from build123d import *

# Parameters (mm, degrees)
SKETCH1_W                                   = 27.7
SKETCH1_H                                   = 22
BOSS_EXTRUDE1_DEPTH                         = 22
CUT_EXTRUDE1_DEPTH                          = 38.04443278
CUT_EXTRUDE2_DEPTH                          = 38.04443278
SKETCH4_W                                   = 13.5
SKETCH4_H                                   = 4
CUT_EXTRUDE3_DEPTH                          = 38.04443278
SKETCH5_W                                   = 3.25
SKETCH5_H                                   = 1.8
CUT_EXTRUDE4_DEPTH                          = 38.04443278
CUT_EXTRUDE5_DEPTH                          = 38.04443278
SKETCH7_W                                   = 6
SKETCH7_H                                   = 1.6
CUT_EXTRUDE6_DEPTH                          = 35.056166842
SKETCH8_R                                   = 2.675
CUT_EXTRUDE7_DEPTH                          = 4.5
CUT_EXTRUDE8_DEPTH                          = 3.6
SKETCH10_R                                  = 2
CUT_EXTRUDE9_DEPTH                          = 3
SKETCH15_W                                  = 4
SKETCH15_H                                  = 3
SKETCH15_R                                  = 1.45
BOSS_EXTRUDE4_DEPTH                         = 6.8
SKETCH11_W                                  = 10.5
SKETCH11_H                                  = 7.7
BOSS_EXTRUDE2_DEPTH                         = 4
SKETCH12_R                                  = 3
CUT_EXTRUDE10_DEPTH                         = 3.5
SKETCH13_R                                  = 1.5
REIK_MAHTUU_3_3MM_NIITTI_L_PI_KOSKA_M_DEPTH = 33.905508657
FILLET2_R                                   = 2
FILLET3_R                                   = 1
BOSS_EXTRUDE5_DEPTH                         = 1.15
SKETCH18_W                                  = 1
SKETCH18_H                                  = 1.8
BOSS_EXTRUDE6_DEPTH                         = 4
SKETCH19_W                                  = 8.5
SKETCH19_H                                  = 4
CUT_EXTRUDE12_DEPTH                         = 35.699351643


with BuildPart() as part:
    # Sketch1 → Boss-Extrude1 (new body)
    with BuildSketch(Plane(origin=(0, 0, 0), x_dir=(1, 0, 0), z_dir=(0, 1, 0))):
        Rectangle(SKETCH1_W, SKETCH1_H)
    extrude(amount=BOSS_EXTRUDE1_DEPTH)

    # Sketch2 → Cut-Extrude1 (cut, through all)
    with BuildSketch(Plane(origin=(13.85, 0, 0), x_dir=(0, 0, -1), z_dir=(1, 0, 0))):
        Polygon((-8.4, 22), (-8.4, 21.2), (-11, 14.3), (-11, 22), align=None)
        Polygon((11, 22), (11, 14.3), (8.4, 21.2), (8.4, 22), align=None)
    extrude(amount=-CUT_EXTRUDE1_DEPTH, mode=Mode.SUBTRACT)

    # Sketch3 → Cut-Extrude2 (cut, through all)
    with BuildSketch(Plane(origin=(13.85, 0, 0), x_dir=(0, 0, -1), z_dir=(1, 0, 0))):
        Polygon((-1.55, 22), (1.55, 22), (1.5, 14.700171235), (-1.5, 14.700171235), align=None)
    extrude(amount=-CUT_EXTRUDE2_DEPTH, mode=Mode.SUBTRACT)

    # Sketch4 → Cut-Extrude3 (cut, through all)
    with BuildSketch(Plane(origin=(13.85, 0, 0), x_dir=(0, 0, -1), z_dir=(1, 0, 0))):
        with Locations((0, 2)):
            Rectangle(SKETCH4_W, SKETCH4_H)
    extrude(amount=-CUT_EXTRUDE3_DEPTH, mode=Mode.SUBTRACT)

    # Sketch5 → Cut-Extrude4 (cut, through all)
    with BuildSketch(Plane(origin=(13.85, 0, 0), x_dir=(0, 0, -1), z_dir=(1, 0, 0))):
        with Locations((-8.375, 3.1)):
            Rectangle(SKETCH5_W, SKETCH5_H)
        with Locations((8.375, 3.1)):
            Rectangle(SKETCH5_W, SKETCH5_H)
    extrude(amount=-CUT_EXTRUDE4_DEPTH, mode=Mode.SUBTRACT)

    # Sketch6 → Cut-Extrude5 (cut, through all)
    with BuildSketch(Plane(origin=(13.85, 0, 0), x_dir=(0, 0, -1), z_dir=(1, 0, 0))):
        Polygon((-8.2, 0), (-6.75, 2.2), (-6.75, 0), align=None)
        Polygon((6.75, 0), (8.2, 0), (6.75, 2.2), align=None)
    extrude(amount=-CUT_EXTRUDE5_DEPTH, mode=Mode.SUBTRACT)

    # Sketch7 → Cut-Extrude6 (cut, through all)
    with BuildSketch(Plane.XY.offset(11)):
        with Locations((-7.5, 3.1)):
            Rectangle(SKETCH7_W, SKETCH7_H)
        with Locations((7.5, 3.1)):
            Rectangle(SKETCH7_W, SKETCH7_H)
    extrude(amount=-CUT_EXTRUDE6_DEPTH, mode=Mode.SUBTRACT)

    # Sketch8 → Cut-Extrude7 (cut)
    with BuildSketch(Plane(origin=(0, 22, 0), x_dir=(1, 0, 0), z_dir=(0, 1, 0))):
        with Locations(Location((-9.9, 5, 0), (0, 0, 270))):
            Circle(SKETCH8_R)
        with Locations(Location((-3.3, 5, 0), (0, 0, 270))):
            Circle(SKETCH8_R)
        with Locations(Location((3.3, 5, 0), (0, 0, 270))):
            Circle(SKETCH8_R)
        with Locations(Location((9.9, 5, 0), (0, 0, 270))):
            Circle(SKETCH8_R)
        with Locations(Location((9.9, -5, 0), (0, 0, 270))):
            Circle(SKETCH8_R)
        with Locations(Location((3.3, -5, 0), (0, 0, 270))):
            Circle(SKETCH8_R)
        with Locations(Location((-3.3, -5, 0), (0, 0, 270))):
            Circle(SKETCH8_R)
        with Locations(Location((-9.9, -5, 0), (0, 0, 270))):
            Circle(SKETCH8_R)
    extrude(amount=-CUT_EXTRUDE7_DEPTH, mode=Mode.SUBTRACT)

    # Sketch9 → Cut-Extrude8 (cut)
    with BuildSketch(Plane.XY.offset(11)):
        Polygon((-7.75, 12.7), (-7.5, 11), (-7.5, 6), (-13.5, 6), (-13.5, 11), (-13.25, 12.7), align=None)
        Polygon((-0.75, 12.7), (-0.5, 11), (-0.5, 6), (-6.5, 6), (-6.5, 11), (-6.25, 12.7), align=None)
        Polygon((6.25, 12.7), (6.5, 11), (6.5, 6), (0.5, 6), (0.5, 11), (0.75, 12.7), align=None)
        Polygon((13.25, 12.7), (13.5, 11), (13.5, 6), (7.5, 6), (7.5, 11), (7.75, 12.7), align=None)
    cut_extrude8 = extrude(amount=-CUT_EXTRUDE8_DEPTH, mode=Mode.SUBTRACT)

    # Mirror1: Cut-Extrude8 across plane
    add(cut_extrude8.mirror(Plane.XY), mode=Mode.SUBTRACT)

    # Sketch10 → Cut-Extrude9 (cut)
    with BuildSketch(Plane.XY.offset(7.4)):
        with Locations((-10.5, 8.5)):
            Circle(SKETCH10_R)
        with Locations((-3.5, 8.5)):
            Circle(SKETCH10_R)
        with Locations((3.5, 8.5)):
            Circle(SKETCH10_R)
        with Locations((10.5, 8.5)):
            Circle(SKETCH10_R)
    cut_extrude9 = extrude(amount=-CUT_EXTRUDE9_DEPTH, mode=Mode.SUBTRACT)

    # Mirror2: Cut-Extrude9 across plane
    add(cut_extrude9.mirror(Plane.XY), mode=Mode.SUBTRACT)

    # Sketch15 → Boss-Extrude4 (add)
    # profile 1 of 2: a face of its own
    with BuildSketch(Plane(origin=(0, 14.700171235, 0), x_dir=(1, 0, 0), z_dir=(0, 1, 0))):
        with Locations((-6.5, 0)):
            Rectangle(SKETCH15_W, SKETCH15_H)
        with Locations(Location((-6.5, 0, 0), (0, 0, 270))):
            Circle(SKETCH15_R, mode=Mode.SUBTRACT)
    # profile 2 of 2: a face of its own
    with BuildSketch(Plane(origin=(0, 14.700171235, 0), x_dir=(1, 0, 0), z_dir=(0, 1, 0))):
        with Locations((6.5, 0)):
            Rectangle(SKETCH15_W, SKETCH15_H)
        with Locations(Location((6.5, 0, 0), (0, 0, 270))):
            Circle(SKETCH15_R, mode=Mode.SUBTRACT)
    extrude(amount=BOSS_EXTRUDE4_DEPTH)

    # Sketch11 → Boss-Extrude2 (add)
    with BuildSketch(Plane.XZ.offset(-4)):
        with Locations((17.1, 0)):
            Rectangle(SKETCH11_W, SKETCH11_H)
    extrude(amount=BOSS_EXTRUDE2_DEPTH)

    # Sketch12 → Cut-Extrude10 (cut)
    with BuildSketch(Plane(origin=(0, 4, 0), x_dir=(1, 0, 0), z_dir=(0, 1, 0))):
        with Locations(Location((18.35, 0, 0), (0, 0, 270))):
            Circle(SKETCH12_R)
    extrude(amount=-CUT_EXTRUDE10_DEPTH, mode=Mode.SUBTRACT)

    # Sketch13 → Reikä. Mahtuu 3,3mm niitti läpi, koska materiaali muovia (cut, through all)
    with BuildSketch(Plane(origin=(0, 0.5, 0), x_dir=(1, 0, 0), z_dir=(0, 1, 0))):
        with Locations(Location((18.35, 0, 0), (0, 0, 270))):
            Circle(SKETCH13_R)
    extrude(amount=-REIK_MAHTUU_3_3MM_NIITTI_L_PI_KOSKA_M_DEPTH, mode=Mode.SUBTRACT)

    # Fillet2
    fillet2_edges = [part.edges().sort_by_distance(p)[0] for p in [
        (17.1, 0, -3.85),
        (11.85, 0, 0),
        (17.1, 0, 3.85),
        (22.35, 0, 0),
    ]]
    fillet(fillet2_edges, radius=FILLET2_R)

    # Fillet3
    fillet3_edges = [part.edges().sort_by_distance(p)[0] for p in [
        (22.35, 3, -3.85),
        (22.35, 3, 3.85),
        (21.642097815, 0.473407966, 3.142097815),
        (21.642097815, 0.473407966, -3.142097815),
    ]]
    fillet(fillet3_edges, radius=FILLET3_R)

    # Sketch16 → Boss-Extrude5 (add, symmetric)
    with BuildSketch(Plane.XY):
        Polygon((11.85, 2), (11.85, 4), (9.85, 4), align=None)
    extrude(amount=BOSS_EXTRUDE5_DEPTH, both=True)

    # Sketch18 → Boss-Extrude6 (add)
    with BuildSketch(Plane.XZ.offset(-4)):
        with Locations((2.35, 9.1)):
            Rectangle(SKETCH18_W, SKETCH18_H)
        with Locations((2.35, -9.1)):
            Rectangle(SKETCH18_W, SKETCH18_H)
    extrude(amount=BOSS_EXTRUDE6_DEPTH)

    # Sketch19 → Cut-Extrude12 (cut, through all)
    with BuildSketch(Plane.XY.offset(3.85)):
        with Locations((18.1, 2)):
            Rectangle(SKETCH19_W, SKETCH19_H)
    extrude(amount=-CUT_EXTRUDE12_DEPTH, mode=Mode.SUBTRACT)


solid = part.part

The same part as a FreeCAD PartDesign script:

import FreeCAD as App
import Part
import Sketcher
Q = App.Units.Quantity


def edges_at(feature, points):
    """Names of the edges that pass closest to the given points."""
    edges = feature.Shape.Edges
    near = lambda p: min(range(len(edges)), key=lambda i: edges[i].distToShape(Part.Vertex(*p))[0])
    return sorted({f"Edge{near(p) + 1}" for p in points})


def add_polygon(sketch, points):
    """Adds a closed chain of lines whose ends are joined by coincident constraints."""
    first, n = sketch.GeometryCount, len(points)
    for a, b in zip(points, points[1:] + points[:1]):
        sketch.addGeometry(Part.LineSegment(App.Vector(*a, 0), App.Vector(*b, 0)), False)
    for i in range(n):
        sketch.addConstraint(Sketcher.Constraint("Coincident", first + i, 2, first + (i + 1) % n, 1))

doc = App.newDocument("Part")
body = doc.addObject("PartDesign::Body", "Body")

sketch1 = body.newObject("Sketcher::SketchObject", "Sketch")
sketch1.AttachmentSupport = (doc.getObject("XZ_Plane"), [""])
sketch1.MapMode = "FlatFace"
add_polygon(sketch1, [(-13.85, -11), (-13.85, 11), (13.85, 11), (13.85, -11)])
sketch1.addConstraint([
    Sketcher.Constraint("Vertical", 0),
    Sketcher.Constraint("Horizontal", 1),
    Sketcher.Constraint("Vertical", 2),
    Sketcher.Constraint("Horizontal", 3),
    Sketcher.Constraint("Symmetric", 0, 2, 2, 2, -1, 1),
    Sketcher.Constraint("DistanceY", 0, 1, 0, 2, Q("22 mm")),
    Sketcher.Constraint("DistanceX", 1, 1, 1, 2, Q("27.7 mm")),
])
pad1 = body.newObject("PartDesign::Pad", "Pad")
pad1.Profile = sketch1
pad1.Length = 22
pad1.Reversed = True

sketch2 = body.newObject("Sketcher::SketchObject", "Sketch001")
sketch2.AttachmentSupport = (doc.getObject("YZ_Plane"), [""])
sketch2.MapMode = "FlatFace"
sketch2.AttachmentOffset = App.Placement(App.Vector(0, 0, 13.85), App.Rotation())
add_polygon(sketch2, [(21.2, 8.4), (22, 8.4), (22, 11), (14.3, 11)])
add_polygon(sketch2, [(14.3, -11), (22, -11), (22, -8.4), (21.2, -8.4)])
sketch2.addConstraint([
    Sketcher.Constraint("Horizontal", 0),
    Sketcher.Constraint("Vertical", 1),
    Sketcher.Constraint("Horizontal", 2),
    Sketcher.Constraint("Horizontal", 4),
    Sketcher.Constraint("Vertical", 5),
    Sketcher.Constraint("Horizontal", 6),
    Sketcher.Constraint("Symmetric", 1, 2, 4, 2, -1),
    Sketcher.Constraint("Symmetric", 3, 2, 6, 2, -1),
    Sketcher.Constraint("Vertical", 2, 2, 7, 2),
    Sketcher.Constraint("DistanceX", 0, 1, 0, 2, Q("0.8 mm")),
    Sketcher.Constraint("DistanceX", 2, 2, 2, 1, Q("7.7 mm")),
    Sketcher.Constraint("DistanceY", 1, 1, 1, 2, Q("2.6 mm")),
    Sketcher.Constraint("DistanceX", -1, 1, 0, 2, Q("22 mm")),
    Sketcher.Constraint("DistanceY", -1, 1, 1, 2, Q("11 mm")),
])
pocket1 = body.newObject("PartDesign::Pocket", "Pocket")
pocket1.Profile = sketch2
pocket1.Type = "ThroughAll"

sketch3 = body.newObject("Sketcher::SketchObject", "Sketch002")
sketch3.AttachmentSupport = (doc.getObject("YZ_Plane"), [""])
sketch3.MapMode = "FlatFace"
sketch3.AttachmentOffset = App.Placement(App.Vector(0, 0, 13.85), App.Rotation())
add_polygon(sketch3, [(22, -1.55), (22, 1.55), (14.700171, 1.5), (14.700171, -1.5)])
sketch3.addConstraint([
    Sketcher.Constraint("Vertical", 0),
    Sketcher.Constraint("Vertical", 2),
    Sketcher.Constraint("Equal", 1, 3),
    Sketcher.Constraint("DistanceY", 2, 2, 2, 1, Q("3 mm")),
    Sketcher.Constraint("DistanceY", 0, 1, 0, 2, Q("3.1 mm")),
    Sketcher.Constraint("DistanceX", -1, 1, 0, 2, Q("22 mm")),
    Sketcher.Constraint("Distance", 1, Q("7.3 mm")),
    Sketcher.Constraint("DistanceY", -1, 1, 1, 2, Q("1.5 mm")),
])
pocket2 = body.newObject("PartDesign::Pocket", "Pocket001")
pocket2.Profile = sketch3
pocket2.Type = "ThroughAll"

sketch4 = body.newObject("Sketcher::SketchObject", "Sketch003")
sketch4.AttachmentSupport = (doc.getObject("YZ_Plane"), [""])
sketch4.MapMode = "FlatFace"
sketch4.AttachmentOffset = App.Placement(App.Vector(0, 0, 13.85), App.Rotation())
add_polygon(sketch4, [(4, 6.75), (0, 6.75), (0, -6.75), (4, -6.75)])
sketch4.addConstraint([
    Sketcher.Constraint("Horizontal", 0),
    Sketcher.Constraint("Vertical", 1),
    Sketcher.Constraint("Horizontal", 2),
    Sketcher.Constraint("Vertical", 3),
    Sketcher.Constraint("Symmetric", 0, 2, 1, 2, -1, 1),
    Sketcher.Constraint("DistanceX", 0, 2, 0, 1, Q("4 mm")),
    Sketcher.Constraint("DistanceY", 1, 2, 1, 1, Q("13.5 mm")),
])
pocket3 = body.newObject("PartDesign::Pocket", "Pocket002")
pocket3.Profile = sketch4
pocket3.Type = "ThroughAll"

sketch5 = body.newObject("Sketcher::SketchObject", "Sketch004")
sketch5.AttachmentSupport = (doc.getObject("YZ_Plane"), [""])
sketch5.MapMode = "FlatFace"
sketch5.AttachmentOffset = App.Placement(App.Vector(0, 0, 13.85), App.Rotation())
add_polygon(sketch5, [(4, 10), (2.2, 10), (2.2, 6.75), (4, 6.75)])
add_polygon(sketch5, [(4, -6.75), (2.2, -6.75), (2.2, -10), (4, -10)])
sketch5.addConstraint([
    Sketcher.Constraint("Horizontal", 0),
    Sketcher.Constraint("Vertical", 1),
    Sketcher.Constraint("Horizontal", 2),
    Sketcher.Constraint("Vertical", 3),
    Sketcher.Constraint("Horizontal", 4),
    Sketcher.Constraint("Vertical", 5),
    Sketcher.Constraint("Horizontal", 6),
    Sketcher.Constraint("Vertical", 7),
    Sketcher.Constraint("Symmetric", 1, 2, 4, 2, -1),
    Sketcher.Constraint("Symmetric", 3, 2, 6, 2, -1),
    Sketcher.Constraint("DistanceX", 0, 2, 0, 1, Q("1.8 mm")),
    Sketcher.Constraint("DistanceY", -1, 1, 0, 2, Q("10 mm")),
    Sketcher.Constraint("DistanceX", -1, 1, 2, 2, Q("4 mm")),
    Sketcher.Constraint("DistanceY", 1, 2, 1, 1, Q("3.25 mm")),
])
pocket4 = body.newObject("PartDesign::Pocket", "Pocket003")
pocket4.Profile = sketch5
pocket4.Type = "ThroughAll"

sketch6 = body.newObject("Sketcher::SketchObject", "Sketch005")
sketch6.AttachmentSupport = (doc.getObject("YZ_Plane"), [""])
sketch6.MapMode = "FlatFace"
sketch6.AttachmentOffset = App.Placement(App.Vector(0, 0, 13.85), App.Rotation())
add_polygon(sketch6, [(2.2, 6.75), (0, 8.2), (0, 6.75)])
add_polygon(sketch6, [(0, -6.75), (0, -8.2), (2.2, -6.75)])
sketch6.addConstraint([
    Sketcher.Constraint("Vertical", 1),
    Sketcher.Constraint("Horizontal", 2),
    Sketcher.Constraint("Vertical", 3),
    Sketcher.Constraint("Horizontal", 5),
    Sketcher.Constraint("Symmetric", 0, 2, 3, 2, -1, 1),
    Sketcher.Constraint("Symmetric", 2, 2, 4, 2, -1),
    Sketcher.Constraint("PointOnObject", 0, 2, -2),
    Sketcher.Constraint("DistanceX", 2, 1, 2, 2, Q("2.2 mm")),
    Sketcher.Constraint("DistanceY", 1, 2, 1, 1, Q("1.45 mm")),
    Sketcher.Constraint("DistanceY", -1, 1, 0, 2, Q("8.2 mm")),
])
pocket5 = body.newObject("PartDesign::Pocket", "Pocket004")
pocket5.Profile = sketch6
pocket5.Type = "ThroughAll"

sketch7 = body.newObject("Sketcher::SketchObject", "Sketch006")
sketch7.AttachmentSupport = (doc.getObject("XY_Plane"), [""])
sketch7.MapMode = "FlatFace"
sketch7.AttachmentOffset = App.Placement(App.Vector(0, 0, 11), App.Rotation())
add_polygon(sketch7, [(-10.5, 3.9), (-10.5, 2.3), (-4.5, 2.3), (-4.5, 3.9)])
add_polygon(sketch7, [(4.5, 3.9), (4.5, 2.3), (10.5, 2.3), (10.5, 3.9)])
sketch7.addConstraint([
    Sketcher.Constraint("Vertical", 0),
    Sketcher.Constraint("Horizontal", 1),
    Sketcher.Constraint("Vertical", 2),
    Sketcher.Constraint("Horizontal", 3),
    Sketcher.Constraint("Vertical", 4),
    Sketcher.Constraint("Horizontal", 5),
    Sketcher.Constraint("Vertical", 6),
    Sketcher.Constraint("Horizontal", 7),
    Sketcher.Constraint("Symmetric", 1, 2, 4, 2, -2),
    Sketcher.Constraint("Symmetric", 3, 2, 6, 2, -2),
    Sketcher.Constraint("DistanceX", 1, 1, 1, 2, Q("6 mm")),
    Sketcher.Constraint("DistanceY", 0, 2, 0, 1, Q("1.6 mm")),
    Sketcher.Constraint("DistanceX", 1, 2, 4, 2, Q("9 mm")),
    Sketcher.Constraint("DistanceY", -1, 1, 0, 2, Q("2.3 mm")),
])
pocket6 = body.newObject("PartDesign::Pocket", "Pocket005")
pocket6.Profile = sketch7
pocket6.Type = "ThroughAll"

sketch8 = body.newObject("Sketcher::SketchObject", "Sketch007")
sketch8.AttachmentSupport = (doc.getObject("XZ_Plane"), [""])
sketch8.MapMode = "FlatFace"
sketch8.AttachmentOffset = App.Placement(App.Vector(0, 0, -22), App.Rotation())
sketch8.addGeometry([
    Part.Circle(App.Vector(-9.9, -5, 0), App.Vector(0, 0, 1), 2.675),
    Part.Circle(App.Vector(-3.3, -5, 0), App.Vector(0, 0, 1), 2.675),
    Part.Circle(App.Vector(3.3, -5, 0), App.Vector(0, 0, 1), 2.675),
    Part.Circle(App.Vector(9.9, -5, 0), App.Vector(0, 0, 1), 2.675),
    Part.Circle(App.Vector(9.9, 5, 0), App.Vector(0, 0, 1), 2.675),
    Part.Circle(App.Vector(3.3, 5, 0), App.Vector(0, 0, 1), 2.675),
    Part.Circle(App.Vector(-3.3, 5, 0), App.Vector(0, 0, 1), 2.675),
    Part.Circle(App.Vector(-9.9, 5, 0), App.Vector(0, 0, 1), 2.675),
], False)
sketch8.addConstraint([
    Sketcher.Constraint("Equal", 0, 1),
    Sketcher.Constraint("Equal", 1, 2),
    Sketcher.Constraint("Equal", 2, 3),
    Sketcher.Constraint("Equal", 3, 4),
    Sketcher.Constraint("Equal", 4, 5),
    Sketcher.Constraint("Equal", 5, 6),
    Sketcher.Constraint("Equal", 6, 7),
    Sketcher.Constraint("Symmetric", 0, 3, 4, 3, -1, 1),
    Sketcher.Constraint("Symmetric", 1, 3, 5, 3, -1, 1),
    Sketcher.Constraint("Symmetric", 2, 3, 6, 3, -1, 1),
    Sketcher.Constraint("Symmetric", 3, 3, 7, 3, -1, 1),
    Sketcher.Constraint("Symmetric", 1, 3, 2, 3, -2),
    Sketcher.Constraint("Symmetric", 0, 3, 3, 3, -2),
    Sketcher.Constraint("Horizontal", 0, 3, 1, 3),
    Sketcher.Constraint("Diameter", 0, Q("5.35 mm")),
    Sketcher.Constraint("DistanceY", 0, 3, -1, 1, Q("5 mm")),
    Sketcher.Constraint("DistanceX", 0, 3, -1, 1, Q("9.9 mm")),
    Sketcher.Constraint("DistanceX", 1, 3, -1, 1, Q("3.3 mm")),
])
pocket7 = body.newObject("PartDesign::Pocket", "Pocket006")
pocket7.Profile = sketch8
pocket7.Length = 4.5
pocket7.Reversed = True

sketch9 = body.newObject("Sketcher::SketchObject", "Sketch008")
sketch9.AttachmentSupport = (doc.getObject("XY_Plane"), [""])
sketch9.MapMode = "FlatFace"
sketch9.AttachmentOffset = App.Placement(App.Vector(0, 0, 11), App.Rotation())
add_polygon(sketch9, [(-7.5, 11), (-7.75, 12.7), (-13.25, 12.7), (-13.5, 11), (-13.5, 6), (-7.5, 6)])
add_polygon(sketch9, [(-0.5, 11), (-0.75, 12.7), (-6.25, 12.7), (-6.5, 11), (-6.5, 6), (-0.5, 6)])
add_polygon(sketch9, [(6.5, 11), (6.25, 12.7), (0.75, 12.7), (0.5, 11), (0.5, 6), (6.5, 6)])
add_polygon(sketch9, [(13.5, 11), (13.25, 12.7), (7.75, 12.7), (7.5, 11), (7.5, 6), (13.5, 6)])
sketch9.addConstraint([
    Sketcher.Constraint("Horizontal", 1),
    Sketcher.Constraint("Vertical", 3),
    Sketcher.Constraint("Horizontal", 4),
    Sketcher.Constraint("Vertical", 5),
    Sketcher.Constraint("Horizontal", 7),
    Sketcher.Constraint("Vertical", 9),
    Sketcher.Constraint("Horizontal", 10),
    Sketcher.Constraint("Vertical", 11),
    Sketcher.Constraint("Horizontal", 13),
    Sketcher.Constraint("Vertical", 15),
    Sketcher.Constraint("Horizontal", 16),
    Sketcher.Constraint("Vertical", 17),
    Sketcher.Constraint("Horizontal", 19),
    Sketcher.Constraint("Vertical", 21),
    Sketcher.Constraint("Horizontal", 22),
    Sketcher.Constraint("Vertical", 23),
    Sketcher.Constraint("Symmetric", 7, 2, 12, 2, -2),
    Sketcher.Constraint("Symmetric", 11, 2, 14, 2, -2),
    Sketcher.Constraint("Symmetric", 9, 2, 16, 2, -2),
    Sketcher.Constraint("Symmetric", 1, 2, 18, 2, -2),
    Sketcher.Constraint("Symmetric", 5, 2, 20, 2, -2),
    Sketcher.Constraint("Symmetric", 3, 2, 22, 2, -2),
    Sketcher.Constraint("Parallel", 0, 6),
    Sketcher.Constraint("Parallel", 2, 8),
    Sketcher.Constraint("Parallel", 6, 12),
    Sketcher.Constraint("Parallel", 8, 14),
    Sketcher.Constraint("Parallel", 12, 18),
    Sketcher.Constraint("Parallel", 14, 20),
    Sketcher.Constraint("Horizontal", 2, 2, 5, 2),
    Sketcher.Constraint("Horizontal", 1, 2, 6, 2),
    Sketcher.Constraint("Horizontal", 5, 2, 8, 2),
    Sketcher.Constraint("Horizontal", 4, 2, 9, 2),
    Sketcher.Constraint("Horizontal", 8, 2, 11, 2),
    Sketcher.Constraint("Horizontal", 14, 2, 17, 2),
    Sketcher.Constraint("Equal", 1, 7),
    Sketcher.Constraint("DistanceX", 4, 1, 4, 2, Q("6 mm")),
    Sketcher.Constraint("DistanceY", 3, 2, 3, 1, Q("5 mm")),
    Sketcher.Constraint("DistanceX", 1, 2, 1, 1, Q("5.5 mm")),
    Sketcher.Constraint("DistanceY", -1, 1, 2, 2, Q("11 mm")),
    Sketcher.Constraint("DistanceX", 0, 2, 6, 2, Q("7 mm")),
    Sketcher.Constraint("DistanceX", 6, 2, 12, 2, Q("7 mm")),
    Sketcher.Constraint("DistanceY", -1, 1, 0, 2, Q("12.7 mm")),
])
pocket8 = body.newObject("PartDesign::Pocket", "Pocket007")
pocket8.Profile = sketch9
pocket8.Length = 3.6
doc.recompute()

mirrored = body.newObject("PartDesign::Mirrored", "Mirrored")
mirrored.Originals = [pocket8]
mirrored.MirrorPlane = (doc.getObject("XY_Plane"), [""])
body.Tip = mirrored

sketch10 = body.newObject("Sketcher::SketchObject", "Sketch009")
sketch10.AttachmentSupport = (doc.getObject("XY_Plane"), [""])
sketch10.MapMode = "FlatFace"
sketch10.AttachmentOffset = App.Placement(App.Vector(0, 0, 7.4), App.Rotation())
sketch10.addGeometry([
    Part.Circle(App.Vector(-10.5, 8.5, 0), App.Vector(0, 0, 1), 2),
    Part.Circle(App.Vector(-3.5, 8.5, 0), App.Vector(0, 0, 1), 2),
    Part.Circle(App.Vector(3.5, 8.5, 0), App.Vector(0, 0, 1), 2),
    Part.Circle(App.Vector(10.5, 8.5, 0), App.Vector(0, 0, 1), 2),
], False)
sketch10.addConstraint([
    Sketcher.Constraint("Equal", 0, 1),
    Sketcher.Constraint("Equal", 1, 2),
    Sketcher.Constraint("Equal", 2, 3),
    Sketcher.Constraint("Symmetric", 1, 3, 2, 3, -2),
    Sketcher.Constraint("Symmetric", 0, 3, 3, 3, -2),
    Sketcher.Constraint("Horizontal", 0, 3, 1, 3),
    Sketcher.Constraint("Diameter", 0, Q("4 mm")),
    Sketcher.Constraint("DistanceX", 0, 3, 1, 3, Q("7 mm")),
    Sketcher.Constraint("DistanceX", 1, 3, 2, 3, Q("7 mm")),
    Sketcher.Constraint("DistanceY", -1, 1, 0, 3, Q("8.5 mm")),
])
pocket9 = body.newObject("PartDesign::Pocket", "Pocket008")
pocket9.Profile = sketch10
pocket9.Length = 3
doc.recompute()

mirrored2 = body.newObject("PartDesign::Mirrored", "Mirrored001")
mirrored2.Originals = [pocket9]
mirrored2.MirrorPlane = (doc.getObject("XY_Plane"), [""])
body.Tip = mirrored2

sketch11 = body.newObject("Sketcher::SketchObject", "Sketch010")
sketch11.AttachmentSupport = (doc.getObject("XZ_Plane"), [""])
sketch11.MapMode = "FlatFace"
sketch11.AttachmentOffset = App.Placement(App.Vector(0, 0, -14.700171), App.Rotation())
add_polygon(sketch11, [(-8.5, -1.5), (-8.5, 1.5), (-4.5, 1.5), (-4.5, -1.5)])
sketch11.addGeometry(Part.Circle(App.Vector(-6.5, 0, 0), App.Vector(0, 0, 1), 1.45), False)
add_polygon(sketch11, [(4.5, -1.5), (4.5, 1.5), (8.5, 1.5), (8.5, -1.5)])
sketch11.addGeometry(Part.Circle(App.Vector(6.5, 0, 0), App.Vector(0, 0, 1), 1.45), False)
sketch11.addConstraint([
    Sketcher.Constraint("Vertical", 0),
    Sketcher.Constraint("Horizontal", 1),
    Sketcher.Constraint("Vertical", 2),
    Sketcher.Constraint("Horizontal", 3),
    Sketcher.Constraint("Vertical", 5),
    Sketcher.Constraint("Horizontal", 6),
    Sketcher.Constraint("Vertical", 7),
    Sketcher.Constraint("Horizontal", 8),
    Sketcher.Constraint("Equal", 4, 9),
    Sketcher.Constraint("Symmetric", 4, 3, 9, 3, -1, 1),
    Sketcher.Constraint("Symmetric", 2, 2, 5, 2, -1, 1),
    Sketcher.Constraint("Symmetric", 0, 2, 7, 2, -1, 1),
    Sketcher.Constraint("PointOnObject", 4, 3, -1),
    Sketcher.Constraint("Horizontal", 1, 2, 5, 2),
    Sketcher.Constraint("Diameter", 4, Q("2.9 mm")),
    Sketcher.Constraint("DistanceX", 1, 1, 1, 2, Q("4 mm")),
    Sketcher.Constraint("DistanceY", 0, 1, 0, 2, Q("3 mm")),
    Sketcher.Constraint("DistanceX", 4, 3, 9, 3, Q("13 mm")),
    Sketcher.Constraint("DistanceX", 0, 2, 4, 3, Q("2 mm")),
])
pad2 = body.newObject("PartDesign::Pad", "Pad001")
pad2.Profile = sketch11
pad2.Length = 6.8
pad2.Reversed = True

sketch12 = body.newObject("Sketcher::SketchObject", "Sketch011")
sketch12.AttachmentSupport = (doc.getObject("XZ_Plane"), [""])
sketch12.MapMode = "FlatFace"
sketch12.AttachmentOffset = App.Placement(App.Vector(0, 0, -4), App.Rotation())
add_polygon(sketch12, [(11.85, 3.85), (11.85, -3.85), (22.35, -3.85), (22.35, 3.85)])
sketch12.addConstraint([
    Sketcher.Constraint("Vertical", 0),
    Sketcher.Constraint("Horizontal", 1),
    Sketcher.Constraint("Vertical", 2),
    Sketcher.Constraint("Horizontal", 3),
    Sketcher.Constraint("DistanceX", 1, 1, 1, 2, Q("10.5 mm")),
    Sketcher.Constraint("DistanceY", 0, 2, 0, 1, Q("7.7 mm")),
    Sketcher.Constraint("DistanceX", -1, 1, 0, 2, Q("11.85 mm")),
    Sketcher.Constraint("DistanceY", 0, 2, -1, 1, Q("3.85 mm")),
])
pad3 = body.newObject("PartDesign::Pad", "Pad002")
pad3.Profile = sketch12
pad3.Length = 4

sketch13 = body.newObject("Sketcher::SketchObject", "Sketch012")
sketch13.AttachmentSupport = (doc.getObject("XZ_Plane"), [""])
sketch13.MapMode = "FlatFace"
sketch13.AttachmentOffset = App.Placement(App.Vector(0, 0, -4), App.Rotation())
sketch13.addGeometry(Part.Circle(App.Vector(18.35, 0, 0), App.Vector(0, 0, 1), 3), False)
sketch13.addConstraint([
    Sketcher.Constraint("PointOnObject", 0, 3, -1),
    Sketcher.Constraint("Diameter", 0, Q("6 mm")),
    Sketcher.Constraint("DistanceX", -1, 1, 0, 3, Q("18.35 mm")),
])
pocket10 = body.newObject("PartDesign::Pocket", "Pocket009")
pocket10.Profile = sketch13
pocket10.Length = 3.5
pocket10.Reversed = True

sketch14 = body.newObject("Sketcher::SketchObject", "Sketch013")
sketch14.AttachmentSupport = (doc.getObject("XZ_Plane"), [""])
sketch14.MapMode = "FlatFace"
sketch14.AttachmentOffset = App.Placement(App.Vector(0, 0, -0.5), App.Rotation())
sketch14.addGeometry(Part.Circle(App.Vector(18.35, 0, 0), App.Vector(0, 0, 1), 1.5), False)
sketch14.addConstraint([
    Sketcher.Constraint("PointOnObject", 0, 3, -1),
    Sketcher.Constraint("Diameter", 0, Q("3 mm")),
    Sketcher.Constraint("DistanceX", -1, 1, 0, 3, Q("18.35 mm")),
])
pocket11 = body.newObject("PartDesign::Pocket", "Pocket010")
pocket11.Profile = sketch14
pocket11.Type = "ThroughAll"
pocket11.Reversed = True
doc.recompute()

fillet = body.newObject("PartDesign::Fillet", "Fillet")
fillet.Base = (pocket11, edges_at(pocket11, [
    (17.1, 0, -3.85),
    (11.85, 0, 0),
    (17.1, 0, 3.85),
    (22.35, 0, 0),
]))
fillet.Radius = 2
doc.recompute()

fillet2 = body.newObject("PartDesign::Fillet", "Fillet001")
fillet2.Base = (fillet, edges_at(fillet, [
    (22.35, 3, -3.85),
    (22.35, 3, 3.85),
    (21.642, 0.473, 3.142),
    (21.642, 0.473, -3.142),
]))
fillet2.Radius = 1

sketch15 = body.newObject("Sketcher::SketchObject", "Sketch014")
sketch15.AttachmentSupport = (doc.getObject("XY_Plane"), [""])
sketch15.MapMode = "FlatFace"
add_polygon(sketch15, [(11.85, 2), (11.85, 4), (9.85, 4)])
sketch15.addConstraint([
    Sketcher.Constraint("Vertical", 0),
    Sketcher.Constraint("Horizontal", 1),
    Sketcher.Constraint("Equal", 1, 0),
    Sketcher.Constraint("DistanceX", 1, 2, 1, 1, Q("2 mm")),
    Sketcher.Constraint("DistanceY", -1, 1, 0, 2, Q("4 mm")),
    Sketcher.Constraint("DistanceX", -1, 1, 0, 2, Q("11.85 mm")),
])
pad4 = body.newObject("PartDesign::Pad", "Pad003")
pad4.Profile = sketch15
pad4.Length = 2.3
pad4.Midplane = True

sketch16 = body.newObject("Sketcher::SketchObject", "Sketch015")
sketch16.AttachmentSupport = (doc.getObject("XZ_Plane"), [""])
sketch16.MapMode = "FlatFace"
sketch16.AttachmentOffset = App.Placement(App.Vector(0, 0, -4), App.Rotation())
add_polygon(sketch16, [(1.85, 10), (1.85, 8.2), (2.85, 8.2), (2.85, 10)])
add_polygon(sketch16, [(1.85, -8.2), (1.85, -10), (2.85, -10), (2.85, -8.2)])
sketch16.addConstraint([
    Sketcher.Constraint("Vertical", 0),
    Sketcher.Constraint("Horizontal", 1),
    Sketcher.Constraint("Vertical", 2),
    Sketcher.Constraint("Horizontal", 3),
    Sketcher.Constraint("Vertical", 4),
    Sketcher.Constraint("Horizontal", 5),
    Sketcher.Constraint("Vertical", 6),
    Sketcher.Constraint("Horizontal", 7),
    Sketcher.Constraint("Symmetric", 3, 2, 4, 2, -1),
    Sketcher.Constraint("Symmetric", 1, 2, 6, 2, -1),
    Sketcher.Constraint("DistanceX", 1, 1, 1, 2, Q("1 mm")),
    Sketcher.Constraint("DistanceY", 0, 2, 0, 1, Q("1.8 mm")),
    Sketcher.Constraint("DistanceY", -1, 1, 2, 2, Q("10 mm")),
    Sketcher.Constraint("DistanceX", -1, 1, 0, 2, Q("1.85 mm")),
])
pad5 = body.newObject("PartDesign::Pad", "Pad004")
pad5.Profile = sketch16
pad5.Length = 4

sketch17 = body.newObject("Sketcher::SketchObject", "Sketch016")
sketch17.AttachmentSupport = (doc.getObject("XY_Plane"), [""])
sketch17.MapMode = "FlatFace"
sketch17.AttachmentOffset = App.Placement(App.Vector(0, 0, 3.85), App.Rotation())
add_polygon(sketch17, [(13.85, 4), (13.85, 0), (22.35, 0), (22.35, 4)])
sketch17.addConstraint([
    Sketcher.Constraint("Vertical", 0),
    Sketcher.Constraint("Horizontal", 1),
    Sketcher.Constraint("Vertical", 2),
    Sketcher.Constraint("Horizontal", 3),
    Sketcher.Constraint("PointOnObject", 0, 2, -1),
    Sketcher.Constraint("DistanceY", 0, 2, 0, 1, Q("4 mm")),
    Sketcher.Constraint("DistanceX", 1, 1, 1, 2, Q("8.5 mm")),
    Sketcher.Constraint("DistanceX", -1, 1, 0, 2, Q("13.85 mm")),
])
pocket12 = body.newObject("PartDesign::Pocket", "Pocket011")
pocket12.Profile = sketch17
pocket12.Type = "ThroughAll"

doc.recompute()
